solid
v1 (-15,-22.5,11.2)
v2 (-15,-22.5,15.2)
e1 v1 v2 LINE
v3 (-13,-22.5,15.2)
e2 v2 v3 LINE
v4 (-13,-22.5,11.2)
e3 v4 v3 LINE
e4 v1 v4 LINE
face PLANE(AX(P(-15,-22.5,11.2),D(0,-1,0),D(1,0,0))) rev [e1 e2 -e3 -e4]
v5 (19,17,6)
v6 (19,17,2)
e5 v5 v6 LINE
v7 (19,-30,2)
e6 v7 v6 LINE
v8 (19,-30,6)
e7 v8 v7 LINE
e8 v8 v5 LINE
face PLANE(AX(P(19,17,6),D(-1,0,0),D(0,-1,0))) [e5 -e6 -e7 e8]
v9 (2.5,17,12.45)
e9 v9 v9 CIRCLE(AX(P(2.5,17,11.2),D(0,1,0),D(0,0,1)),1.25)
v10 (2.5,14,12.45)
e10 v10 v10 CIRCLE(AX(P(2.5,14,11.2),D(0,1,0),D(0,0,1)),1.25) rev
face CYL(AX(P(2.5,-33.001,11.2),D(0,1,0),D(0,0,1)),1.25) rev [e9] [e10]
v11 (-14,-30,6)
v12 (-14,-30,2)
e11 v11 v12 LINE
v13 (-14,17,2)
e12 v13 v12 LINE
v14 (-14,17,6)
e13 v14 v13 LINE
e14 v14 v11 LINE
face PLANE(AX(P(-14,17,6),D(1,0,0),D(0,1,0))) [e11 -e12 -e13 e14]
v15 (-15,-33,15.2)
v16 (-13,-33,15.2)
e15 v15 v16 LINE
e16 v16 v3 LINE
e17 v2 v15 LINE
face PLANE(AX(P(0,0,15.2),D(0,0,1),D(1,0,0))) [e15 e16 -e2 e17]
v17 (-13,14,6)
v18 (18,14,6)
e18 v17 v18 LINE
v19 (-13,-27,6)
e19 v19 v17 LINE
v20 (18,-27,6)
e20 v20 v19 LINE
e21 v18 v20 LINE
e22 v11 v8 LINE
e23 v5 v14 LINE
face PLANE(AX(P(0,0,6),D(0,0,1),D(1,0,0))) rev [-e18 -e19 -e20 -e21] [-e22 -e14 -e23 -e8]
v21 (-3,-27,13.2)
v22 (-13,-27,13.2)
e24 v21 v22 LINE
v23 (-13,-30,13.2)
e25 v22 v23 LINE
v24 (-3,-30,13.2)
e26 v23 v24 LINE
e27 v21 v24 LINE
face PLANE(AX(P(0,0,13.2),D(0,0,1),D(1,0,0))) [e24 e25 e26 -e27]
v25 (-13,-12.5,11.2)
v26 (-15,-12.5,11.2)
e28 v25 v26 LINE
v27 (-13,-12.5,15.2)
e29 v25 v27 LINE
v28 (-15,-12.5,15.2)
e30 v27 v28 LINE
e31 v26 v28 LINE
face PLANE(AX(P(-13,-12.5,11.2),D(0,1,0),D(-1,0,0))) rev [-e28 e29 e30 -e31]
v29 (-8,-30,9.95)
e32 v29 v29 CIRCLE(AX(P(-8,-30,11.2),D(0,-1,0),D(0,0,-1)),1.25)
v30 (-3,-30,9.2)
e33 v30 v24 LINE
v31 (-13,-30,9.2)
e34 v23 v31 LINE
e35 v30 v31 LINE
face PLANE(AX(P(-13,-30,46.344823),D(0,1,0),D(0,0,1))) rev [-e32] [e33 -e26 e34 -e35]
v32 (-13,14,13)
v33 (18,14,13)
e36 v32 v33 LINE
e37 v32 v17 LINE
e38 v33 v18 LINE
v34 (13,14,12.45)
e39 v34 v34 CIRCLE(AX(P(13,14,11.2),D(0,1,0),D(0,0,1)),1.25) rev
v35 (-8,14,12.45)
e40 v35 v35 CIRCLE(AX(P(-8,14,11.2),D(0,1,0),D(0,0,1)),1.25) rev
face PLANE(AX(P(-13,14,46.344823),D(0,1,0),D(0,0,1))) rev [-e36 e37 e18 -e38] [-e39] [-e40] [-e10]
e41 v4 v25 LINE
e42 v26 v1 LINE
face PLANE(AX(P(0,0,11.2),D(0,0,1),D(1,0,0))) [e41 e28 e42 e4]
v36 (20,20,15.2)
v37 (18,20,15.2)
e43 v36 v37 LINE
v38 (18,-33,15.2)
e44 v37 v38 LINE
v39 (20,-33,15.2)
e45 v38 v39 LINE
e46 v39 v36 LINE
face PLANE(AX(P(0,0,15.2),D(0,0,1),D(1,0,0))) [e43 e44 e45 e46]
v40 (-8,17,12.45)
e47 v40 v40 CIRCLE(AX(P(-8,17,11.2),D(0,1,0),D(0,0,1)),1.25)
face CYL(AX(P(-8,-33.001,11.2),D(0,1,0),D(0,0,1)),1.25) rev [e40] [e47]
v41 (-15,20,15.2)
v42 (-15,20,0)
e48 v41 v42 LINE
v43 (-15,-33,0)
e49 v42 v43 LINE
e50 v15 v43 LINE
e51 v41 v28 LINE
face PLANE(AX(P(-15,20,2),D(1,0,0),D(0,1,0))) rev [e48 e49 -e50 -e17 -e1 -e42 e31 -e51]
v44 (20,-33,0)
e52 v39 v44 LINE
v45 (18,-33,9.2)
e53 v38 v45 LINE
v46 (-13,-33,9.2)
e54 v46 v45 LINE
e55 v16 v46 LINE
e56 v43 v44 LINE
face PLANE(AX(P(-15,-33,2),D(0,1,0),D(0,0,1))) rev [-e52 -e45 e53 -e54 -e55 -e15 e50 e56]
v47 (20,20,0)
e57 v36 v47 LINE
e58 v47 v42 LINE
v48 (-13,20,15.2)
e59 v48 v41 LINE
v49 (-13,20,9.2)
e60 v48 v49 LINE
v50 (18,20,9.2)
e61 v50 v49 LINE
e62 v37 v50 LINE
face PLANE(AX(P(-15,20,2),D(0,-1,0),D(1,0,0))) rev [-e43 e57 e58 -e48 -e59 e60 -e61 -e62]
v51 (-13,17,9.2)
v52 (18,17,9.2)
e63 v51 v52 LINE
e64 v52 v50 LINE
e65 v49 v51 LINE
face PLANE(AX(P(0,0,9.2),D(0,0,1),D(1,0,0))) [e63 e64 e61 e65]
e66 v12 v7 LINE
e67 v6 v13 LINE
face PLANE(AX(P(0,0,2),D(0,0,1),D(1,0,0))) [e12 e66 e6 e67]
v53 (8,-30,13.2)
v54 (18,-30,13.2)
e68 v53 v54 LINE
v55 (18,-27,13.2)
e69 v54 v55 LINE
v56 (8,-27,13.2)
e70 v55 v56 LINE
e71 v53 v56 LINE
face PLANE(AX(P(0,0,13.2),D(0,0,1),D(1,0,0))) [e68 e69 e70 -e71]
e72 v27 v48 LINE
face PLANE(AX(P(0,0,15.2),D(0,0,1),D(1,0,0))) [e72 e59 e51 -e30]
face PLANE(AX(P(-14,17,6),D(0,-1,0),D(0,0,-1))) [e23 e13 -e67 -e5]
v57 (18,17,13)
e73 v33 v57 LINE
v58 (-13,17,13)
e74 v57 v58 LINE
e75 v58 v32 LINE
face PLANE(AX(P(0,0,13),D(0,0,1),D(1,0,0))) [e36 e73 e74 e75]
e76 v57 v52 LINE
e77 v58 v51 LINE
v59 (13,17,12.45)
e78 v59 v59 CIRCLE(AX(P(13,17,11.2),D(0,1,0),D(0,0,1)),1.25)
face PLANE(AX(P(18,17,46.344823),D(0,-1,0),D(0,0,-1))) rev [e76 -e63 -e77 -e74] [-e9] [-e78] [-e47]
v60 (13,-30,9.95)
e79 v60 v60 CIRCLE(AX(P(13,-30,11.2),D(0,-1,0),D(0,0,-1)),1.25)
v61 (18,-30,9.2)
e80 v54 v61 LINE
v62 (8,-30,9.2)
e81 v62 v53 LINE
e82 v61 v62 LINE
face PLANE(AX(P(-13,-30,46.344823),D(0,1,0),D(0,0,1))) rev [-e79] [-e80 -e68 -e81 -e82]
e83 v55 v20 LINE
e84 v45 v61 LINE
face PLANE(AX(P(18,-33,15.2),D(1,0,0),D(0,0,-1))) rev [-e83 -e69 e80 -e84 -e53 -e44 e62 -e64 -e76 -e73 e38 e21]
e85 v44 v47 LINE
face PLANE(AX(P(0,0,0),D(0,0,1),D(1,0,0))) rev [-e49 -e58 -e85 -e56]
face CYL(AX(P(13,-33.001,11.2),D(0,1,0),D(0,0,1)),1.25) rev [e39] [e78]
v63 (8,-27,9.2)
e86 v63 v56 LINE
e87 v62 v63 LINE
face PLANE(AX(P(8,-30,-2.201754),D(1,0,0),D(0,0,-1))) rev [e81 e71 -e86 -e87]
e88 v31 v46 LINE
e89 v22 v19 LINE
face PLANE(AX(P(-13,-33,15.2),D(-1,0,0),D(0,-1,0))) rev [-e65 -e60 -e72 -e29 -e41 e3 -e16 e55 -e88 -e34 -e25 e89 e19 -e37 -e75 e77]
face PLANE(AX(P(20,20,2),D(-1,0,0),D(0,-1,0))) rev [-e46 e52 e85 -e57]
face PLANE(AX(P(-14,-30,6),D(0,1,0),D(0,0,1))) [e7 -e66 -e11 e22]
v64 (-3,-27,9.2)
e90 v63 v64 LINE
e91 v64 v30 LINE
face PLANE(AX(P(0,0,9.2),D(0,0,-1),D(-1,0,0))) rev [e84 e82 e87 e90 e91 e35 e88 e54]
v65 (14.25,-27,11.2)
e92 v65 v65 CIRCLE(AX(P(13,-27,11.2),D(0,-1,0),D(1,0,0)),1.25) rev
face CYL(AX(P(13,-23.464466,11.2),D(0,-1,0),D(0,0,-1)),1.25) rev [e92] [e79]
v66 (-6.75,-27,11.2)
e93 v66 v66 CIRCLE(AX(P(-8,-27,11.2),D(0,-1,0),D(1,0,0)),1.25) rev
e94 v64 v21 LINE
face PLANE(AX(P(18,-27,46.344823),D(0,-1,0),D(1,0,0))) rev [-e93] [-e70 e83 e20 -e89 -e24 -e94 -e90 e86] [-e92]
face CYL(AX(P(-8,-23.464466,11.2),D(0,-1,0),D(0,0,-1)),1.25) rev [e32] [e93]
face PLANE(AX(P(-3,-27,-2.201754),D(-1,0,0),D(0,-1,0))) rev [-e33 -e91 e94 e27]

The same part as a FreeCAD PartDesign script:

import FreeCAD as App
import Part
import Sketcher

doc = App.newDocument("Part")
body = doc.addObject("PartDesign::Body", "Body")

# Sketch on XY plane
sketch1 = doc.addObject("Sketcher::SketchObject", "Sketch")
body.addObject(sketch1)
sketch1.AttachmentSupport = (doc.XY_Plane, [""])
sketch1.MapMode = "FlatFace"
sketch1.addGeometry([
    Part.LineSegment(App.Vector(-15, 20, 0), App.Vector(-15, -33, 0)),
    Part.LineSegment(App.Vector(-15, -33, 0), App.Vector(20, -33, 0)),
    Part.LineSegment(App.Vector(20, -33, 0), App.Vector(20, 20, 0)),
    Part.LineSegment(App.Vector(20, 20, 0), App.Vector(-15, 20, 0)),
], False)
sketch1.addConstraint([
    Sketcher.Constraint("Coincident", 0, 2, 1, 1),
    Sketcher.Constraint("Coincident", 1, 2, 2, 1),
    Sketcher.Constraint("Coincident", 2, 2, 3, 1),
    Sketcher.Constraint("Coincident", 3, 2, 0, 1),
    Sketcher.Constraint("Vertical", 0),
    Sketcher.Constraint("Horizontal", 1),
    Sketcher.Constraint("Vertical", 2),
    Sketcher.Constraint("Horizontal", 3),
    Sketcher.Constraint("DistanceX", 1, 1, 1, 2, 35.0),
    Sketcher.Constraint("DistanceY", 0, 2, 0, 1, 53.0),
    Sketcher.Constraint("DistanceX", 0, 2, -1, 1, 15.0),
    Sketcher.Constraint("DistanceY", 0, 2, -1, 1, 33.0),
])
pad1 = doc.addObject("PartDesign::Pad", "Pad")
body.addObject(pad1)
pad1.Profile = sketch1
pad1.Length = 2

# Sketch on XY plane
sketch2 = doc.addObject("Sketcher::SketchObject", "Sketch001")
body.addObject(sketch2)
sketch2.AttachmentSupport = (doc.XY_Plane, [""])
sketch2.MapMode = "FlatFace"
sketch2.AttachmentOffset = App.Placement(App.Vector(0, 0, 2), App.Rotation())
sketch2.addGeometry([
    Part.LineSegment(App.Vector(-15, 20, 0), App.Vector(-15, -33, 0)),  # 0
    Part.LineSegment(App.Vector(-15, -33, 0), App.Vector(-13, -33, 0)),  # 1
    Part.LineSegment(App.Vector(-13, -33, 0), App.Vector(-13, 20, 0)),  # 2
    Part.LineSegment(App.Vector(-13, 20, 0), App.Vector(-15, 20, 0)),  # 3
    Part.LineSegment(App.Vector(18, 20, 0), App.Vector(18, -33, 0)),  # 4
    Part.LineSegment(App.Vector(18, -33, 0), App.Vector(20, -33, 0)),  # 5
    Part.LineSegment(App.Vector(20, -33, 0), App.Vector(20, 20, 0)),  # 6
    Part.LineSegment(App.Vector(20, 20, 0), App.Vector(18, 20, 0)),  # 7
], False)
sketch2.addConstraint([
    Sketcher.Constraint("Coincident", 0, 2, 1, 1),
    Sketcher.Constraint("Coincident", 1, 2, 2, 1),
    Sketcher.Constraint("Coincident", 2, 2, 3, 1),
    Sketcher.Constraint("Coincident", 3, 2, 0, 1),
    Sketcher.Constraint("Coincident", 4, 2, 5, 1),
    Sketcher.Constraint("Coincident", 5, 2, 6, 1),
    Sketcher.Constraint("Coincident", 6, 2, 7, 1),
    Sketcher.Constraint("Coincident", 7, 2, 4, 1),
    Sketcher.Constraint("Vertical", 0),
    Sketcher.Constraint("Horizontal", 1),
    Sketcher.Constraint("Vertical", 2),
    Sketcher.Constraint("Horizontal", 3),
    Sketcher.Constraint("Vertical", 4),
    Sketcher.Constraint("Horizontal", 5),
    Sketcher.Constraint("Vertical", 6),
    Sketcher.Constraint("Horizontal", 7),
    Sketcher.Constraint("Horizontal", 1, 2, 4, 2),
    Sketcher.Constraint("Horizontal", 3, 2, 6, 2),
    Sketcher.Constraint("Equal", 3, 5),
    Sketcher.Constraint("DistanceX", 1, 1, 1, 2, 2.0),
    Sketcher.Constraint("DistanceY", 0, 2, 0, 1, 53.0),
    Sketcher.Constraint("DistanceX", 0, 2, -1, 1, 15.0),
    Sketcher.Constraint("DistanceY", 0, 2, -1, 1, 33.0),
    Sketcher.Constraint("DistanceX", -1, 1, 4, 2, 18.0),
])
pad2 = doc.addObject("PartDesign::Pad", "Pad001")
body.addObject(pad2)
pad2.Profile = sketch2
pad2.Length = 13.2

# Sketch on XY plane
sketch3 = doc.addObject("Sketcher::SketchObject", "Sketch002")
body.addObject(sketch3)
sketch3.AttachmentSupport = (doc.XY_Plane, [""])
sketch3.MapMode = "FlatFace"
sketch3.AttachmentOffset = App.Placement(App.Vector(0, 0, 2), App.Rotation())
sketch3.addGeometry([
    Part.LineSegment(App.Vector(-13, 20, 0), App.Vector(-13, 17, 0)),  # 0
    Part.LineSegment(App.Vector(-13, 17, 0), App.Vector(18, 17, 0)),  # 1
    Part.LineSegment(App.Vector(18, 17, 0), App.Vector(18, 20, 0)),  # 2
    Part.LineSegment(App.Vector(18, 20, 0), App.Vector(-13, 20, 0)),  # 3
    Part.LineSegment(App.Vector(-13, -30, 0), App.Vector(-13, -33, 0)),  # 4
    Part.LineSegment(App.Vector(-13, -33, 0), App.Vector(18, -33, 0)),  # 5
    Part.LineSegment(App.Vector(18, -33, 0), App.Vector(18, -30, 0)),  # 6
    Part.LineSegment(App.Vector(18, -30, 0), App.Vector(-13, -30, 0)),  # 7
], False)
sketch3.addConstraint([
    Sketcher.Constraint("Coincident", 0, 2, 1, 1),
    Sketcher.Constraint("Coincident", 1, 2, 2, 1),
    Sketcher.Constraint("Coincident", 2, 2, 3, 1),
    Sketcher.Constraint("Coincident", 3, 2, 0, 1),
    Sketcher.Constraint("Coincident", 4, 2, 5, 1),
    Sketcher.Constraint("Coincident", 5, 2, 6, 1),
    Sketcher.Constraint("Coincident", 6, 2, 7, 1),
    Sketcher.Constraint("Coincident", 7, 2, 4, 1),
    Sketcher.Constraint("Vertical", 0),
    Sketcher.Constraint("Horizontal", 1),
    Sketcher.Constraint("Vertical", 2),
    Sketcher.Constraint("Horizontal", 3),
    Sketcher.Constraint("Vertical", 4),
    Sketcher.Constraint("Horizontal", 5),
    Sketcher.Constraint("Vertical", 6),
    Sketcher.Constraint("Horizontal", 7),
    Sketcher.Constraint("Vertical", 3, 2, 4, 2),
    Sketcher.Constraint("Vertical", 2, 2, 5, 2),
    Sketcher.Constraint("Equal", 2, 4),
    Sketcher.Constraint("DistanceX", 1, 1, 1, 2, 31.0),
    Sketcher.Constraint("DistanceY", 0, 2, 0, 1, 3.0),
    Sketcher.Constraint("DistanceX", 0, 2, -1, 1, 13.0),
    Sketcher.Constraint("DistanceY", -1, 1, 0, 2, 17.0),
    Sketcher.Constraint("DistanceY", 4, 2, -1, 1, 33.0),
])
pad3 = doc.addObject("PartDesign::Pad", "Pad002")
body.addObject(pad3)
pad3.Profile = sketch3
pad3.Length = 7.2

# Sketch on XY plane
sketch4 = doc.addObject("Sketcher::SketchObject", "Sketch003")
body.addObject(sketch4)
sketch4.AttachmentSupport = (doc.XY_Plane, [""])
sketch4.MapMode = "FlatFace"
sketch4.AttachmentOffset = App.Placement(App.Vector(0, 0, 2), App.Rotation())
sketch4.addGeometry([
    Part.LineSegment(App.Vector(-13, 17, 0), App.Vector(-13, 14, 0)),  # 0
    Part.LineSegment(App.Vector(-13, 14, 0), App.Vector(18, 14, 0)),  # 1
    Part.LineSegment(App.Vector(18, 14, 0), App.Vector(18, 17, 0)),  # 2
    Part.LineSegment(App.Vector(18, 17, 0), App.Vector(-13, 17, 0)),  # 3
    Part.LineSegment(App.Vector(-13, -27, 0), App.Vector(-13, -30, 0)),  # 4
    Part.LineSegment(App.Vector(-13, -30, 0), App.Vector(18, -30, 0)),  # 5
    Part.LineSegment(App.Vector(18, -30, 0), App.Vector(18, -27, 0)),  # 6
    Part.LineSegment(App.Vector(18, -27, 0), App.Vector(-13, -27, 0)),  # 7
], False)
sketch4.addConstraint([
    Sketcher.Constraint("Coincident", 0, 2, 1, 1),
    Sketcher.Constraint("Coincident", 1, 2, 2, 1),
    Sketcher.Constraint("Coincident", 2, 2, 3, 1),
    Sketcher.Constraint("Coincident", 3, 2, 0, 1),
    Sketcher.Constraint("Coincident", 4, 2, 5, 1),
    Sketcher.Constraint("Coincident", 5, 2, 6, 1),
    Sketcher.Constraint("Coincident", 6, 2, 7, 1),
    Sketcher.Constraint("Coincident", 7, 2, 4, 1),
    Sketcher.Constraint("Vertical", 0),
    Sketcher.Constraint("Horizontal", 1),
    Sketcher.Constraint("Vertical", 2),
    Sketcher.Constraint("Horizontal", 3),
    Sketcher.Constraint("Vertical", 4),
    Sketcher.Constraint("Horizontal", 5),
    Sketcher.Constraint("Vertical", 6),
    Sketcher.Constraint("Horizontal", 7),
    Sketcher.Constraint("Vertical", 3, 2, 4, 2),
    Sketcher.Constraint("Vertical", 2, 2, 5, 2),
    Sketcher.Constraint("Equal", 2, 4),
    Sketcher.Constraint("DistanceX", 1, 1, 1, 2, 31.0),
    Sketcher.Constraint("DistanceY", 0, 2, 0, 1, 3.0),
    Sketcher.Constraint("DistanceX", 0, 2, -1, 1, 13.0),
    Sketcher.Constraint("DistanceY", -1, 1, 0, 2, 14.0),
    Sketcher.Constraint("DistanceY", 4, 2, -1, 1, 30.0),
])
pad4 = doc.addObject("PartDesign::Pad", "Pad003")
body.addObject(pad4)
pad4.Profile = sketch4
pad4.Length = 13.2

# Sketch on XZ plane
sketch5 = doc.addObject("Sketcher::SketchObject", "Sketch004")
body.addObject(sketch5)
sketch5.AttachmentSupport = (doc.XZ_Plane, [""])
sketch5.MapMode = "FlatFace"
sketch5.AttachmentOffset = App.Placement(App.Vector(0, 0, -17), App.Rotation())
sketch5.addGeometry(Part.Circle(App.Vector(-8, 11.2, 0), App.Vector(0, 0, 1), 1.2), False)
sketch5.addConstraint([
    Sketcher.Constraint("Diameter", 0, 2.5),
    Sketcher.Constraint("DistanceX", 0, 3, -1, 1, 8.0),
    Sketcher.Constraint("DistanceY", -1, 1, 0, 3, 11.2),
])
pocket1 = doc.addObject("PartDesign::Pocket", "Pocket")
body.addObject(pocket1)
pocket1.Profile = sketch5
pocket1.Type = "UpToFirst"
pocket1.Reversed = True

# Sketch on XZ plane
sketch6 = doc.addObject("Sketcher::SketchObject", "Sketch005")
body.addObject(sketch6)
sketch6.AttachmentSupport = (doc.XZ_Plane, [""])
sketch6.MapMode = "FlatFace"
sketch6.AttachmentOffset = App.Placement(App.Vector(0, 0, -17), App.Rotation())
sketch6.addGeometry(Part.Circle(App.Vector(2.5, 11.2, 0), App.Vector(0, 0, 1), 1.2), False)
sketch6.addConstraint([
    Sketcher.Constraint("Diameter", 0, 2.5),
    Sketcher.Constraint("DistanceX", -1, 1, 0, 3, 2.5),
    Sketcher.Constraint("DistanceY", -1, 1, 0, 3, 11.2),
])
pocket2 = doc.addObject("PartDesign::Pocket", "Pocket001")
body.addObject(pocket2)
pocket2.Profile = sketch6
pocket2.Type = "UpToFirst"
pocket2.Reversed = True

# Sketch on XZ plane
sketch7 = doc.addObject("Sketcher::SketchObject", "Sketch006")
body.addObject(sketch7)
sketch7.AttachmentSupport = (doc.XZ_Plane, [""])
sketch7.MapMode = "FlatFace"
sketch7.AttachmentOffset = App.Placement(App.Vector(0, 0, -17), App.Rotation())
sketch7.addGeometry(Part.Circle(App.Vector(13, 11.2, 0), App.Vector(0, 0, 1), 1.2), False)
sketch7.addConstraint([
    Sketcher.Constraint("Diameter", 0, 2.5),
    Sketcher.Constraint("DistanceX", -1, 1, 0, 3, 13.0),
    Sketcher.Constraint("DistanceY", -1, 1, 0, 3, 11.2),
])
pocket3 = doc.addObject("PartDesign::Pocket", "Pocket002")
body.addObject(pocket3)
pocket3.Profile = sketch7
pocket3.Type = "UpToFirst"
pocket3.Reversed = True

# Sketch on XY plane
sketch8 = doc.addObject("Sketcher::SketchObject", "Sketch007")
body.addObject(sketch8)
sketch8.AttachmentSupport = (doc.XY_Plane, [""])
sketch8.MapMode = "FlatFace"
sketch8.AttachmentOffset = App.Placement(App.Vector(0, 0, 15.2), App.Rotation())
sketch8.addGeometry([
    Part.LineSegment(App.Vector(-13, 17, 0), App.Vector(-13, 14, 0)),
    Part.LineSegment(App.Vector(-13, 14, 0), App.Vector(18, 14, 0)),
    Part.LineSegment(App.Vector(18, 14, 0), App.Vector(18, 17, 0)),
    Part.LineSegment(App.Vector(18, 17, 0), App.Vector(-13, 17, 0)),
], False)
sketch8.addConstraint([
    Sketcher.Constraint("Coincident", 0, 2, 1, 1),
    Sketcher.Constraint("Coincident", 1, 2, 2, 1),
    Sketcher.Constraint("Coincident", 2, 2, 3, 1),
    Sketcher.Constraint("Coincident", 3, 2, 0, 1),
    Sketcher.Constraint("Vertical", 0),
    Sketcher.Constraint("Horizontal", 1),
    Sketcher.Constraint("Vertical", 2),
    Sketcher.Constraint("Horizontal", 3),
    Sketcher.Constraint("DistanceX", 1, 1, 1, 2, 31.0),
    Sketcher.Constraint("DistanceY", 0, 2, 0, 1, 3.0),
    Sketcher.Constraint("DistanceX", 0, 2, -1, 1, 13.0),
    Sketcher.Constraint("DistanceY", -1, 1, 0, 2, 14.0),
])
pocket4 = doc.addObject("PartDesign::Pocket", "Pocket003")
body.addObject(pocket4)
pocket4.Profile = sketch8
pocket4.Length = 2.2

# Sketch on XY plane
sketch9 = doc.addObject("Sketcher::SketchObject", "Sketch008")
body.addObject(sketch9)
sketch9.AttachmentSupport = (doc.XY_Plane, [""])
sketch9.MapMode = "FlatFace"
sketch9.AttachmentOffset = App.Placement(App.Vector(0, 0, 15.2), App.Rotation())
sketch9.addGeometry([
    Part.LineSegment(App.Vector(-13, -27, 0), App.Vector(-13, -30, 0)),
    Part.LineSegment(App.Vector(-13, -30, 0), App.Vector(18, -30, 0)),
    Part.LineSegment(App.Vector(18, -30, 0), App.Vector(18, -27, 0)),
    Part.LineSegment(App.Vector(18, -27, 0), App.Vector(-13, -27, 0)),
], False)
sketch9.addConstraint([
    Sketcher.Constraint("Coincident", 0, 2, 1, 1),
    Sketcher.Constraint("Coincident", 1, 2, 2, 1),
    Sketcher.Constraint("Coincident", 2, 2, 3, 1),
    Sketcher.Constraint("Coincident", 3, 2, 0, 1),
    Sketcher.Constraint("Vertical", 0),
    Sketcher.Constraint("Horizontal", 1),
    Sketcher.Constraint("Vertical", 2),
    Sketcher.Constraint("Horizontal", 3),
    Sketcher.Constraint("DistanceX", 1, 1, 1, 2, 31.0),
    Sketcher.Constraint("DistanceY", 0, 2, 0, 1, 3.0),
    Sketcher.Constraint("DistanceX", 0, 2, -1, 1, 13.0),
    Sketcher.Constraint("DistanceY", 0, 2, -1, 1, 30.0),
])
pocket5 = doc.addObject("PartDesign::Pocket", "Pocket004")
body.addObject(pocket5)
pocket5.Profile = sketch9
pocket5.Length = 2

# Sketch on XY plane
sketch10 = doc.addObject("Sketcher::SketchObject", "Sketch009")
body.addObject(sketch10)
sketch10.AttachmentSupport = (doc.XY_Plane, [""])
sketch10.MapMode = "FlatFace"
sketch10.AttachmentOffset = App.Placement(App.Vector(0, 0, 13.2), App.Rotation())
sketch10.addGeometry([
    Part.LineSegment(App.Vector(-3, -27, 0), App.Vector(-3, -30, 0)),
    Part.LineSegment(App.Vector(-3, -30, 0), App.Vector(8, -30, 0)),
    Part.LineSegment(App.Vector(8, -30, 0), App.Vector(8, -27, 0)),
    Part.LineSegment(App.Vector(8, -27, 0), App.Vector(-3, -27, 0)),
], False)
sketch10.addConstraint([
    Sketcher.Constraint("Coincident", 0, 2, 1, 1),
    Sketcher.Constraint("Coincident", 1, 2, 2, 1),
    Sketcher.Constraint("Coincident", 2, 2, 3, 1),
    Sketcher.Constraint("Coincident", 3, 2, 0, 1),
    Sketcher.Constraint("Vertical", 0),
    Sketcher.Constraint("Horizontal", 1),
    Sketcher.Constraint("Vertical", 2),
    Sketcher.Constraint("Horizontal", 3),
    Sketcher.Constraint("DistanceX", 1, 1, 1, 2, 11.0),
    Sketcher.Constraint("DistanceY", 0, 2, 0, 1, 3.0),
    Sketcher.Constraint("DistanceX", 0, 2, -1, 1, 3.0),
    Sketcher.Constraint("DistanceY", 0, 2, -1, 1, 30.0),
])
pocket6 = doc.addObject("PartDesign::Pocket", "Pocket005")
body.addObject(pocket6)
pocket6.Profile = sketch10
pocket6.Length = 4

# Sketch on XZ plane
sketch11 = doc.addObject("Sketcher::SketchObject", "Sketch010")
body.addObject(sketch11)
sketch11.AttachmentSupport = (doc.XZ_Plane, [""])
sketch11.MapMode = "FlatFace"
sketch11.AttachmentOffset = App.Placement(App.Vector(0, 0, 27), App.Rotation())
sketch11.addGeometry([
    Part.Circle(App.Vector(-8, 11.2, 0), App.Vector(0, 0, 1), 1.2),
    Part.Circle(App.Vector(13, 11.2, 0), App.Vector(0, 0, 1), 1.2),
], False)
sketch11.addConstraint([
    Sketcher.Constraint("Equal", 0, 1),
    Sketcher.Constraint("Horizontal", 0, 3, 1, 3),
    Sketcher.Constraint("Diameter", 0, 2.5),
    Sketcher.Constraint("DistanceX", 0, 3, -1, 1, 8.0),
    Sketcher.Constraint("DistanceX", -1, 1, 1, 3, 13.0),
    Sketcher.Constraint("DistanceY", -1, 1, 0, 3, 11.2),
])
pocket7 = doc.addObject("PartDesign::Pocket", "Pocket006")
body.addObject(pocket7)
pocket7.Profile = sketch11
pocket7.Length = 3
pocket7.Reversed = True

# Sketch on XY plane
sketch12 = doc.addObject("Sketcher::SketchObject", "Sketch011")
body.addObject(sketch12)
sketch12.AttachmentSupport = (doc.XY_Plane, [""])
sketch12.MapMode = "FlatFace"
sketch12.AttachmentOffset = App.Placement(App.Vector(0, 0, 15.2), App.Rotation())
sketch12.addGeometry([
    Part.LineSegment(App.Vector(-15, -12.5, 0), App.Vector(-15, -22.5, 0)),
    Part.LineSegment(App.Vector(-15, -22.5, 0), App.Vector(-13, -22.5, 0)),
    Part.LineSegment(App.Vector(-13, -22.5, 0), App.Vector(-13, -12.5, 0)),
    Part.LineSegment(App.Vector(-13, -12.5, 0), App.Vector(-15, -12.5, 0)),
], False)
sketch12.addConstraint([
    Sketcher.Constraint("Coincident", 0, 2, 1, 1),
    Sketcher.Constraint("Coincident", 1, 2, 2, 1),
    Sketcher.Constraint("Coincident", 2, 2, 3, 1),
    Sketcher.Constraint("Coincident", 3, 2, 0, 1),
    Sketcher.Constraint("Vertical", 0),
    Sketcher.Constraint("Horizontal", 1),
    Sketcher.Constraint("Vertical", 2),
    Sketcher.Constraint("Horizontal", 3),
    Sketcher.Constraint("DistanceX", 1, 1, 1, 2, 2.0),
    Sketcher.Constraint("DistanceY", 0, 2, 0, 1, 10.0),
    Sketcher.Constraint("DistanceX", 0, 2, -1, 1, 15.0),
    Sketcher.Constraint("DistanceY", 0, 2, -1, 1, 22.5),
])
pocket8 = doc.addObject("PartDesign::Pocket", "Pocket007")
body.addObject(pocket8)
pocket8.Profile = sketch12
pocket8.Length = 4

# Sketch on XY plane
sketch13 = doc.addObject("Sketcher::SketchObject", "Sketch012")
body.addObject(sketch13)
sketch13.AttachmentSupport = (doc.XY_Plane, [""])
sketch13.MapMode = "FlatFace"
sketch13.AttachmentOffset = App.Placement(App.Vector(0, 0, 2), App.Rotation())
sketch13.addGeometry([
    Part.LineSegment(App.Vector(-14, 17, 0), App.Vector(-14, -30, 0)),
    Part.LineSegment(App.Vector(-14, -30, 0), App.Vector(19, -30, 0)),
    Part.LineSegment(App.Vector(19, -30, 0), App.Vector(19, 17, 0)),
    Part.LineSegment(App.Vector(19, 17, 0), App.Vector(-14, 17, 0)),
], False)
sketch13.addConstraint([
    Sketcher.Constraint("Coincident", 0, 2, 1, 1),
    Sketcher.Constraint("Coincident", 1, 2, 2, 1),
    Sketcher.Constraint("Coincident", 2, 2, 3, 1),
    Sketcher.Constraint("Coincident", 3, 2, 0, 1),
    Sketcher.Constraint("Vertical", 0),
    Sketcher.Constraint("Horizontal", 1),
    Sketcher.Constraint("Vertical", 2),
    Sketcher.Constraint("Horizontal", 3),
    Sketcher.Constraint("DistanceX", 1, 1, 1, 2, 33.0),
    Sketcher.Constraint("DistanceY", 0, 2, 0, 1, 47.0),
    Sketcher.Constraint("DistanceX", 0, 2, -1, 1, 14.0),
    Sketcher.Constraint("DistanceY", 0, 2, -1, 1, 30.0),
])
pocket9 = doc.addObject("PartDesign::Pocket", "Pocket008")
body.addObject(pocket9)
pocket9.Profile = sketch13
pocket9.Length = 4
pocket9.Reversed = True

doc.recompute()
